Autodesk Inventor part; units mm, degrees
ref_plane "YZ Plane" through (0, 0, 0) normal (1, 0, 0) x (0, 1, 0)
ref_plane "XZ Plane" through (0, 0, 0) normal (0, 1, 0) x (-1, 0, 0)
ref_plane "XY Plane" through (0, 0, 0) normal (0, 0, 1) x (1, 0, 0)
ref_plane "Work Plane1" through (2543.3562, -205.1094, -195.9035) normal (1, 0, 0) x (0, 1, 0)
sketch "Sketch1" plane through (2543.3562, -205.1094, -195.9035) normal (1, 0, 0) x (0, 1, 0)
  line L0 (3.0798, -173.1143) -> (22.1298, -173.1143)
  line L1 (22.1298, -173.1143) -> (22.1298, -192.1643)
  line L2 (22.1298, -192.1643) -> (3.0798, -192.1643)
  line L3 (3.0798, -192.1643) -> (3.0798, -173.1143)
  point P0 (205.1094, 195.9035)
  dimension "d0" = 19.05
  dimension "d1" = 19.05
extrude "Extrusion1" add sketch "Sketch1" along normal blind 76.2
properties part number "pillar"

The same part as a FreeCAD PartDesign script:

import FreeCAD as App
import Part
import Sketcher
Q = App.Units.Quantity


def add_polygon(sketch, points):
    """Adds a closed chain of lines whose ends are joined by coincident constraints."""
    first, n = sketch.GeometryCount, len(points)
    for a, b in zip(points, points[1:] + points[:1]):
        sketch.addGeometry(Part.LineSegment(App.Vector(*a, 0), App.Vector(*b, 0)), False)
    for i in range(n):
        sketch.addConstraint(Sketcher.Constraint("Coincident", first + i, 2, first + (i + 1) % n, 1))

doc = App.newDocument("Part")
body = doc.addObject("PartDesign::Body", "Body")

sketch1 = body.newObject("Sketcher::SketchObject", "Sketch")
sketch1.AttachmentSupport = (doc.getObject("YZ_Plane"), [""])
sketch1.MapMode = "FlatFace"
sketch1.AttachmentOffset = App.Placement(App.Vector(0, 0, 2543.3562), App.Rotation())
add_polygon(sketch1, [(-182.9796, -369.0178), (-202.0296, -369.0178), (-202.0296, -388.0678), (-182.9796, -388.0678)])
sketch1.addConstraint(Sketcher.Constraint("Horizontal", 0))
sketch1.addConstraint(Sketcher.Constraint("Vertical", 1))
sketch1.addConstraint(Sketcher.Constraint("Horizontal", 2))
sketch1.addConstraint(Sketcher.Constraint("Vertical", 3))
sketch1.addConstraint(Sketcher.Constraint("Equal", 2, 1))
sketch1.addConstraint(Sketcher.Constraint("DistanceX", 0, 2, 0, 1, Q("0.75 in")))
sketch1.addConstraint(Sketcher.Constraint("DistanceX", 0, 2, -1, 1, 202.0296))
sketch1.addConstraint(Sketcher.Constraint("DistanceY", 0, 2, -1, 1, 369.0178))
pad1 = body.newObject("PartDesign::Pad", "Pad")
pad1.Profile = sketch1
pad1.Length = Q("3 in")

doc.recompute()
